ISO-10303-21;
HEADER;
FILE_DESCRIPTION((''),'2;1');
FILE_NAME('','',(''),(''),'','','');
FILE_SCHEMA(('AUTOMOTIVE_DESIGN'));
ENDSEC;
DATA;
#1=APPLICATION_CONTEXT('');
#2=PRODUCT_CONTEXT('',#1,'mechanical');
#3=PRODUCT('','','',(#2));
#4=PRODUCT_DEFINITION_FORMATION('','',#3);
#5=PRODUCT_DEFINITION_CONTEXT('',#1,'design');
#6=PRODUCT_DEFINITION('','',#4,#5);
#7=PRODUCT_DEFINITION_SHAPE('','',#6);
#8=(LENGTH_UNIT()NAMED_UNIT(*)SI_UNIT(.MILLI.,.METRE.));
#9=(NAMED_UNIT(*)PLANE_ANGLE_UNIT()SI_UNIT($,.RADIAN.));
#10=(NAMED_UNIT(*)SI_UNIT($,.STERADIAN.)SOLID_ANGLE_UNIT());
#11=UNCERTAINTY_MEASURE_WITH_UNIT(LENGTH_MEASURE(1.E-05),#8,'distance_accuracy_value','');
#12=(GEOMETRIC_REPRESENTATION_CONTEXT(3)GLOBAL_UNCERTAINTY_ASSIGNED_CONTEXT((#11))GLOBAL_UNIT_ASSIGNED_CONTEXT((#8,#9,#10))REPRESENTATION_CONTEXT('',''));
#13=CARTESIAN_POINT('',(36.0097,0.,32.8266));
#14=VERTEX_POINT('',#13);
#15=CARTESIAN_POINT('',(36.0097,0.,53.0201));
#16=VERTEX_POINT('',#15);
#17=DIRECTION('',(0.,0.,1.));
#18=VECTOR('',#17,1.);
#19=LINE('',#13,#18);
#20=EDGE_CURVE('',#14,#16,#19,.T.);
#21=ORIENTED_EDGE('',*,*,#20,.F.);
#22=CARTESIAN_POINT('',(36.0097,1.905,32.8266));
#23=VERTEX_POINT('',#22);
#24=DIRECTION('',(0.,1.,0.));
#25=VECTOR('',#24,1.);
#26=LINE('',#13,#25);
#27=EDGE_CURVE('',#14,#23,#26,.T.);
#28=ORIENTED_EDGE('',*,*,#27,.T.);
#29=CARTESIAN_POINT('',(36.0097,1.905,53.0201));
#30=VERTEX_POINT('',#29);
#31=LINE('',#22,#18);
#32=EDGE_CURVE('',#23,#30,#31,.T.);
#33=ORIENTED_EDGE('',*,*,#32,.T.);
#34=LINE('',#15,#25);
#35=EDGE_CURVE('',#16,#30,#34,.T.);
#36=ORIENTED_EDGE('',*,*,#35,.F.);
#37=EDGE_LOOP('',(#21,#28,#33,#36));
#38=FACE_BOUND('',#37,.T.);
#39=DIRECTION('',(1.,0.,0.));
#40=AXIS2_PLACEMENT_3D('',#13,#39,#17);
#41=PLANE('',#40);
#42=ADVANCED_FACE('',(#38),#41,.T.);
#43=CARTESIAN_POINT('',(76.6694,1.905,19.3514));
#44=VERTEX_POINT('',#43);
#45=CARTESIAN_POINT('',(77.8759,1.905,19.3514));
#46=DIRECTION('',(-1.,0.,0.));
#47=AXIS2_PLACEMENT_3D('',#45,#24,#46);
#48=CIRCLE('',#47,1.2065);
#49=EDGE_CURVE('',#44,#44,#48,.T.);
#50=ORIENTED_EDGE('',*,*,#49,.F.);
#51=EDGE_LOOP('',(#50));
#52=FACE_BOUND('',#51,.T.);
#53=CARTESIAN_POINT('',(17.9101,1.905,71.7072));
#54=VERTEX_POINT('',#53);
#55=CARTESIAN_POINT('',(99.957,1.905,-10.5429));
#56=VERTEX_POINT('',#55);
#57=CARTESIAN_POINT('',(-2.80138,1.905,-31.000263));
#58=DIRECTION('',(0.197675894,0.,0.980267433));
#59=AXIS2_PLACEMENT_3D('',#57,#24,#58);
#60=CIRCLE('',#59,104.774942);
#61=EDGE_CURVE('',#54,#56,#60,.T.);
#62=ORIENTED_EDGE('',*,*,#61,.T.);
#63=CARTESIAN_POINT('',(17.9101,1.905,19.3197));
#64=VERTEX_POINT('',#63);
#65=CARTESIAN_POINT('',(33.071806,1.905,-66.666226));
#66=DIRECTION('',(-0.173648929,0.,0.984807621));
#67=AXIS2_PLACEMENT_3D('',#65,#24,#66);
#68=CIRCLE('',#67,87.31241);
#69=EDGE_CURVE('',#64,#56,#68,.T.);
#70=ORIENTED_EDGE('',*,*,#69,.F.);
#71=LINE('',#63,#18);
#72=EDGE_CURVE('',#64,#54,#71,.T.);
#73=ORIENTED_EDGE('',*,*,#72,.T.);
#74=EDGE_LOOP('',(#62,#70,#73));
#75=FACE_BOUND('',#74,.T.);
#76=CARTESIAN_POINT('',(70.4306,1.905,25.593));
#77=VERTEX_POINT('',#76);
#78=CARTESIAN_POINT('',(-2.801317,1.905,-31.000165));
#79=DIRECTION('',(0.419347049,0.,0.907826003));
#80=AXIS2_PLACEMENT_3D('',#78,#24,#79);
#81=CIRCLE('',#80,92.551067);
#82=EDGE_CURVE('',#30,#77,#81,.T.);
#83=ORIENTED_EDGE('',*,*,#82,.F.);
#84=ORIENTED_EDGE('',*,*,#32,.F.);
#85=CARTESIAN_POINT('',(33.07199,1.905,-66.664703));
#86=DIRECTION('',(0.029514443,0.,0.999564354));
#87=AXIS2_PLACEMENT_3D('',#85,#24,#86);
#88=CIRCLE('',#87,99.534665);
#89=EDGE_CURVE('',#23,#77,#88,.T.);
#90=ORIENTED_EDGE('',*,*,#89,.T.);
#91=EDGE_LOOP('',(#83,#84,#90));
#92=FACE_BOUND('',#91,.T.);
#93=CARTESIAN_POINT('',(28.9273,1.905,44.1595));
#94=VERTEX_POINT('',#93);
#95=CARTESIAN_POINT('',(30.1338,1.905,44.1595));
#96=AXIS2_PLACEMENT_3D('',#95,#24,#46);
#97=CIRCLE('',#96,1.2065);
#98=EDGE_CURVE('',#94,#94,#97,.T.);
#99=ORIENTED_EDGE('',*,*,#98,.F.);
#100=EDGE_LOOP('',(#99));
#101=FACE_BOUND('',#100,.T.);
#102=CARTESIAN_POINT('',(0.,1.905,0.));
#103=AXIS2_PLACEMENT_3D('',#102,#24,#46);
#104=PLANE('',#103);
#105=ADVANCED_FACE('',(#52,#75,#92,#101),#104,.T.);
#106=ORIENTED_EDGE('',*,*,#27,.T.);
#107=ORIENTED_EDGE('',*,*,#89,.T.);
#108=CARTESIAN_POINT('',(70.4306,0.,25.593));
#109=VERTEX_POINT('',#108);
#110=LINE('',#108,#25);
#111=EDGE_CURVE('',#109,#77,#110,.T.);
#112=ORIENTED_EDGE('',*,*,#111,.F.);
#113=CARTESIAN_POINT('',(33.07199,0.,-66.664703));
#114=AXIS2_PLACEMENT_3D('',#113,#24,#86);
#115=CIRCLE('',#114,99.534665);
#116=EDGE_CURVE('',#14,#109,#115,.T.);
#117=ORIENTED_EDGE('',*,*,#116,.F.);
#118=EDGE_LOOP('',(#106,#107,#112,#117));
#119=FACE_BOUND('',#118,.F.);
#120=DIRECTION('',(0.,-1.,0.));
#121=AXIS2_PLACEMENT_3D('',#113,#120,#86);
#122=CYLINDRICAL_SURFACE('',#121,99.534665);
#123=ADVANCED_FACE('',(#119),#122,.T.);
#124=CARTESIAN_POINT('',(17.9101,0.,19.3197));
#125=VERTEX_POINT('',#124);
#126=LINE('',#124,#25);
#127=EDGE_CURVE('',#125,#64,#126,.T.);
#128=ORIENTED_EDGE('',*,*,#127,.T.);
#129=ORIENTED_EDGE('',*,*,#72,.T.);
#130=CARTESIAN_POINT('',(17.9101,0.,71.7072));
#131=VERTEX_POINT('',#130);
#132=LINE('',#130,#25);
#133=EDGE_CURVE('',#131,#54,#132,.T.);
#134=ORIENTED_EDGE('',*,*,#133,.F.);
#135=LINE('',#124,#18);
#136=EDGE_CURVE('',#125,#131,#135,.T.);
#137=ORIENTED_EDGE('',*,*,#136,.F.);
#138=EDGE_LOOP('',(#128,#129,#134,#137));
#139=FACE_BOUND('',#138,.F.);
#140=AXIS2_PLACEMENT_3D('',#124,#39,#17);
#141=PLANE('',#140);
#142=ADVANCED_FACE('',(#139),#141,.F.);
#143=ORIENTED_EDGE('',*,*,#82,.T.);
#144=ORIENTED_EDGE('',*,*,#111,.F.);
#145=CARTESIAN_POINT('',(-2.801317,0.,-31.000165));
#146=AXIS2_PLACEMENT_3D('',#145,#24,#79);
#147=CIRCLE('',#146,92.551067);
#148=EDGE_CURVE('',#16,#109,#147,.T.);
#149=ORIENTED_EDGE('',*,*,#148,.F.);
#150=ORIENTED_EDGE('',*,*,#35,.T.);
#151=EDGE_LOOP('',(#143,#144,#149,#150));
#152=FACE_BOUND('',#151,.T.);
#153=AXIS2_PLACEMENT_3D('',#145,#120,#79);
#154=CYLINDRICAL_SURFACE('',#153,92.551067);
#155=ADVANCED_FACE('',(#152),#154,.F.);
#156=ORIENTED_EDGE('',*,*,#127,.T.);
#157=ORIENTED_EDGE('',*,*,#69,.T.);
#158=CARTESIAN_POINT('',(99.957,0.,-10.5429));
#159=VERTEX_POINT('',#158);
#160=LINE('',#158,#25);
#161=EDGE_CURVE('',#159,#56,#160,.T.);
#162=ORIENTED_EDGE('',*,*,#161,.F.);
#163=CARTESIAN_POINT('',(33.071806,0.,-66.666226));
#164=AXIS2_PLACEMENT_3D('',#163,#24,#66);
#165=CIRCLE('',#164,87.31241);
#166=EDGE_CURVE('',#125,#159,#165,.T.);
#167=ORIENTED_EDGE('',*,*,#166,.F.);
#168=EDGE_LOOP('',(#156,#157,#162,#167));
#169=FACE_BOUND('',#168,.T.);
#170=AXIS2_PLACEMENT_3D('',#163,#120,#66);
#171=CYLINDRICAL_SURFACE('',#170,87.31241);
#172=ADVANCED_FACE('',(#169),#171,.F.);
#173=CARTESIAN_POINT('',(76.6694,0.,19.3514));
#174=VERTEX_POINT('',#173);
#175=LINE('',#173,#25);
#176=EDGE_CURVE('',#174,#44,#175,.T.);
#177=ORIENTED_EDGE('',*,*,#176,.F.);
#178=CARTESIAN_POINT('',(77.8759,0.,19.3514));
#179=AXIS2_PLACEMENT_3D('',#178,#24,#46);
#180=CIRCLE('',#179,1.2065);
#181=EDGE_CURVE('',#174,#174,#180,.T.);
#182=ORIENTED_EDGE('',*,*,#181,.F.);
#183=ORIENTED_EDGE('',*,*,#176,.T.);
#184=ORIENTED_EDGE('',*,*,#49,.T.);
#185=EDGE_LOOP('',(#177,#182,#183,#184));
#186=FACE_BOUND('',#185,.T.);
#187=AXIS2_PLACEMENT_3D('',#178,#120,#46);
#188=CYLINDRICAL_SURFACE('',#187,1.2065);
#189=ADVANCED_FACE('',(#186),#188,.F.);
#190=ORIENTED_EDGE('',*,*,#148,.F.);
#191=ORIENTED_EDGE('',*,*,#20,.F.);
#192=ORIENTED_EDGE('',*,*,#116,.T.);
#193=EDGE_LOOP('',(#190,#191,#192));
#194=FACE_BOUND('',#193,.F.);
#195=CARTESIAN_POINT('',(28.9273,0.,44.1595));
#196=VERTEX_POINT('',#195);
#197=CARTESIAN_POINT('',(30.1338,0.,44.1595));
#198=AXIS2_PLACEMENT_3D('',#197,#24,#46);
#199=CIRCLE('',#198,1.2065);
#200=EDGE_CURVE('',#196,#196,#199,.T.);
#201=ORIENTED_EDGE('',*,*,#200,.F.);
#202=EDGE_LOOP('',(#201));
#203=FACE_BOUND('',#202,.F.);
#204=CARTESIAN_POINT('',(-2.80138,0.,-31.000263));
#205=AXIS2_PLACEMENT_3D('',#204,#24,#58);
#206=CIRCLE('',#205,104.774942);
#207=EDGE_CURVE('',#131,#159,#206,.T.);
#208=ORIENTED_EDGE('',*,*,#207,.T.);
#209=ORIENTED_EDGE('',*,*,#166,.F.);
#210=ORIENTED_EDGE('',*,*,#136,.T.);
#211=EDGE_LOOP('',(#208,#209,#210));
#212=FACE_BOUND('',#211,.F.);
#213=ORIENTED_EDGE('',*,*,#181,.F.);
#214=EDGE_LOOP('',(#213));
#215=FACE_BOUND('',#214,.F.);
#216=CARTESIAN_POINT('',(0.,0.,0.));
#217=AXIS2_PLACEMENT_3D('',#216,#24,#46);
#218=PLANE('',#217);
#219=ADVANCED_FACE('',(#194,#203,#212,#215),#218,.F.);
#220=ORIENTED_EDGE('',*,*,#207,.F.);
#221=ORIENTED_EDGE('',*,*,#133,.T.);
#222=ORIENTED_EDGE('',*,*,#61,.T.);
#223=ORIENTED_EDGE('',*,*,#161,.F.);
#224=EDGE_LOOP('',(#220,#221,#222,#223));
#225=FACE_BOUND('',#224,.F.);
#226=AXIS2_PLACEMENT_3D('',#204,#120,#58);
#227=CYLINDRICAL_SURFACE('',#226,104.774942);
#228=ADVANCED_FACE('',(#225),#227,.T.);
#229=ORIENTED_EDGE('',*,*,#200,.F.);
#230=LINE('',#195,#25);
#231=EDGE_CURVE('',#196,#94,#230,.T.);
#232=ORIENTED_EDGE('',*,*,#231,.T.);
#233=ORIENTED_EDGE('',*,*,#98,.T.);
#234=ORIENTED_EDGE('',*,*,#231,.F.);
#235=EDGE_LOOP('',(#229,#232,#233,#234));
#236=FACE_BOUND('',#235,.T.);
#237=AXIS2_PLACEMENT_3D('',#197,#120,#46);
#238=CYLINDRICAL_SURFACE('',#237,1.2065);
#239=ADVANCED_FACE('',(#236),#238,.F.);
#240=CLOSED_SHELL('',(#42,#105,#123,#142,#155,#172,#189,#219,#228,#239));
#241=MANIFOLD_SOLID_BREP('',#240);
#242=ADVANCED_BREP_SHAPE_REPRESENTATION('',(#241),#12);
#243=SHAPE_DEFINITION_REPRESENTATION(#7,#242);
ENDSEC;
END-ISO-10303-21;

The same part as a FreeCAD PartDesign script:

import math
import FreeCAD as App
import Part
import Sketcher

V = App.Vector
Q = App.Units.Quantity

doc = App.newDocument("Part")
body = doc.addObject("PartDesign::Body", "Body")

# Sketch on XZ plane
sketch1 = doc.addObject("Sketcher::SketchObject", "Sketch")
body.addObject(sketch1)
sketch1.AttachmentSupport = (doc.XZ_Plane, [""])
sketch1.MapMode = "FlatFace"
sketch1.addGeometry(Part.ArcOfCircle(Part.Circle(V(33.1, -66.7, 0), V(0, 0, 1), 87.3), math.radians(40), math.radians(100)), False)
sketch1.addGeometry(Part.LineSegment(V(17.9, 19.3, 0), V(17.9, 71.7, 0)), False)
sketch1.addGeometry(Part.ArcOfCircle(Part.Circle(V(-2.8, -31, 0), V(0, 0, 1), 104.8), math.radians(11), math.radians(79)), False)
sketch1.addGeometry(Part.Circle(V(77.9, 19.4, 0), V(0, 0, 1), 1.2), False)
sketch1.addGeometry(Part.LineSegment(V(36, 53, 0), V(36, 32.8, 0)), False)
sketch1.addGeometry(Part.ArcOfCircle(Part.Circle(V(33.1, -66.7, 0), V(0, 0, 1), 99.5), math.radians(68), math.radians(88)), False)
sketch1.addGeometry(Part.ArcOfCircle(Part.Circle(V(-2.8, -31, 0), V(0, 0, 1), 92.6), math.radians(38), math.radians(65)), False)
sketch1.addGeometry(Part.Circle(V(30.1, 44.2, 0), V(0, 0, 1), 1.2), False)
sketch1.addConstraint(Sketcher.Constraint("Coincident", 0, 2, 1, 1))
sketch1.addConstraint(Sketcher.Constraint("Coincident", 1, 2, 2, 2))
sketch1.addConstraint(Sketcher.Constraint("Coincident", 2, 1, 0, 1))
sketch1.addConstraint(Sketcher.Constraint("Coincident", 4, 2, 5, 2))
sketch1.addConstraint(Sketcher.Constraint("Coincident", 5, 1, 6, 1))
sketch1.addConstraint(Sketcher.Constraint("Coincident", 6, 2, 4, 1))
sketch1.addConstraint(Sketcher.Constraint("Vertical", 1))
sketch1.addConstraint(Sketcher.Constraint("Vertical", 4))
sketch1.addConstraint(Sketcher.Constraint("Coincident", 6, 3, 2, 3))
sketch1.addConstraint(Sketcher.Constraint("Equal", 3, 7))
sketch1.addConstraint(Sketcher.Constraint("Vertical", 0, 3, 5, 3))
sketch1.addConstraint(Sketcher.Constraint("Diameter", 3, Q("0.095 in")))
sketch1.addConstraint(Sketcher.Constraint("Radius", 0, Q("3.4375 in")))
sketch1.addConstraint(Sketcher.Constraint("Radius", 2, Q("4.125 in")))
sketch1.addConstraint(Sketcher.Constraint("DistanceY", 1, 1, 1, 2, Q("2.0625 in")))
sketch1.addConstraint(Sketcher.Constraint("Radius", 5, Q("3.918689 in")))
sketch1.addConstraint(Sketcher.Constraint("Radius", 6, 92.5512))
sketch1.addConstraint(Sketcher.Constraint("DistanceX", 2, 3, 4, 2, Q("1.528 in")))
sketch1.addConstraint(Sketcher.Constraint("DistanceY", 4, 2, 4, 1, 20.1935))
sketch1.addConstraint(Sketcher.Constraint("DistanceX", 2, 3, -1, 1, Q("0.1103 in")))
sketch1.addConstraint(Sketcher.Constraint("DistanceY", 5, 3, -1, 1, Q("2.6246 in")))
sketch1.addConstraint(Sketcher.Constraint("DistanceY", -1, 1, 5, 1, Q("1.0076 in")))
sketch1.addConstraint(Sketcher.Constraint("DistanceX", 7, 3, 3, 3, Q("1.8796 in")))
sketch1.addConstraint(Sketcher.Constraint("DistanceY", 3, 3, 7, 3, Q("0.9767 in")))
sketch1.addConstraint(Sketcher.Constraint("DistanceY", 2, 3, 0, 2, Q("1.9811 in")))
sketch1.addConstraint(Sketcher.Constraint("DistanceX", 7, 3, 5, 1, Q("1.5865 in")))
sketch1.addConstraint(Sketcher.Constraint("DistanceY", -1, 1, 3, 3, 19.3514))
pad1 = doc.addObject("PartDesign::Pad", "Pad")
body.addObject(pad1)
pad1.Profile = sketch1
pad1.Length = Q("0.075 in")
pad1.Reversed = True

doc.recompute()
